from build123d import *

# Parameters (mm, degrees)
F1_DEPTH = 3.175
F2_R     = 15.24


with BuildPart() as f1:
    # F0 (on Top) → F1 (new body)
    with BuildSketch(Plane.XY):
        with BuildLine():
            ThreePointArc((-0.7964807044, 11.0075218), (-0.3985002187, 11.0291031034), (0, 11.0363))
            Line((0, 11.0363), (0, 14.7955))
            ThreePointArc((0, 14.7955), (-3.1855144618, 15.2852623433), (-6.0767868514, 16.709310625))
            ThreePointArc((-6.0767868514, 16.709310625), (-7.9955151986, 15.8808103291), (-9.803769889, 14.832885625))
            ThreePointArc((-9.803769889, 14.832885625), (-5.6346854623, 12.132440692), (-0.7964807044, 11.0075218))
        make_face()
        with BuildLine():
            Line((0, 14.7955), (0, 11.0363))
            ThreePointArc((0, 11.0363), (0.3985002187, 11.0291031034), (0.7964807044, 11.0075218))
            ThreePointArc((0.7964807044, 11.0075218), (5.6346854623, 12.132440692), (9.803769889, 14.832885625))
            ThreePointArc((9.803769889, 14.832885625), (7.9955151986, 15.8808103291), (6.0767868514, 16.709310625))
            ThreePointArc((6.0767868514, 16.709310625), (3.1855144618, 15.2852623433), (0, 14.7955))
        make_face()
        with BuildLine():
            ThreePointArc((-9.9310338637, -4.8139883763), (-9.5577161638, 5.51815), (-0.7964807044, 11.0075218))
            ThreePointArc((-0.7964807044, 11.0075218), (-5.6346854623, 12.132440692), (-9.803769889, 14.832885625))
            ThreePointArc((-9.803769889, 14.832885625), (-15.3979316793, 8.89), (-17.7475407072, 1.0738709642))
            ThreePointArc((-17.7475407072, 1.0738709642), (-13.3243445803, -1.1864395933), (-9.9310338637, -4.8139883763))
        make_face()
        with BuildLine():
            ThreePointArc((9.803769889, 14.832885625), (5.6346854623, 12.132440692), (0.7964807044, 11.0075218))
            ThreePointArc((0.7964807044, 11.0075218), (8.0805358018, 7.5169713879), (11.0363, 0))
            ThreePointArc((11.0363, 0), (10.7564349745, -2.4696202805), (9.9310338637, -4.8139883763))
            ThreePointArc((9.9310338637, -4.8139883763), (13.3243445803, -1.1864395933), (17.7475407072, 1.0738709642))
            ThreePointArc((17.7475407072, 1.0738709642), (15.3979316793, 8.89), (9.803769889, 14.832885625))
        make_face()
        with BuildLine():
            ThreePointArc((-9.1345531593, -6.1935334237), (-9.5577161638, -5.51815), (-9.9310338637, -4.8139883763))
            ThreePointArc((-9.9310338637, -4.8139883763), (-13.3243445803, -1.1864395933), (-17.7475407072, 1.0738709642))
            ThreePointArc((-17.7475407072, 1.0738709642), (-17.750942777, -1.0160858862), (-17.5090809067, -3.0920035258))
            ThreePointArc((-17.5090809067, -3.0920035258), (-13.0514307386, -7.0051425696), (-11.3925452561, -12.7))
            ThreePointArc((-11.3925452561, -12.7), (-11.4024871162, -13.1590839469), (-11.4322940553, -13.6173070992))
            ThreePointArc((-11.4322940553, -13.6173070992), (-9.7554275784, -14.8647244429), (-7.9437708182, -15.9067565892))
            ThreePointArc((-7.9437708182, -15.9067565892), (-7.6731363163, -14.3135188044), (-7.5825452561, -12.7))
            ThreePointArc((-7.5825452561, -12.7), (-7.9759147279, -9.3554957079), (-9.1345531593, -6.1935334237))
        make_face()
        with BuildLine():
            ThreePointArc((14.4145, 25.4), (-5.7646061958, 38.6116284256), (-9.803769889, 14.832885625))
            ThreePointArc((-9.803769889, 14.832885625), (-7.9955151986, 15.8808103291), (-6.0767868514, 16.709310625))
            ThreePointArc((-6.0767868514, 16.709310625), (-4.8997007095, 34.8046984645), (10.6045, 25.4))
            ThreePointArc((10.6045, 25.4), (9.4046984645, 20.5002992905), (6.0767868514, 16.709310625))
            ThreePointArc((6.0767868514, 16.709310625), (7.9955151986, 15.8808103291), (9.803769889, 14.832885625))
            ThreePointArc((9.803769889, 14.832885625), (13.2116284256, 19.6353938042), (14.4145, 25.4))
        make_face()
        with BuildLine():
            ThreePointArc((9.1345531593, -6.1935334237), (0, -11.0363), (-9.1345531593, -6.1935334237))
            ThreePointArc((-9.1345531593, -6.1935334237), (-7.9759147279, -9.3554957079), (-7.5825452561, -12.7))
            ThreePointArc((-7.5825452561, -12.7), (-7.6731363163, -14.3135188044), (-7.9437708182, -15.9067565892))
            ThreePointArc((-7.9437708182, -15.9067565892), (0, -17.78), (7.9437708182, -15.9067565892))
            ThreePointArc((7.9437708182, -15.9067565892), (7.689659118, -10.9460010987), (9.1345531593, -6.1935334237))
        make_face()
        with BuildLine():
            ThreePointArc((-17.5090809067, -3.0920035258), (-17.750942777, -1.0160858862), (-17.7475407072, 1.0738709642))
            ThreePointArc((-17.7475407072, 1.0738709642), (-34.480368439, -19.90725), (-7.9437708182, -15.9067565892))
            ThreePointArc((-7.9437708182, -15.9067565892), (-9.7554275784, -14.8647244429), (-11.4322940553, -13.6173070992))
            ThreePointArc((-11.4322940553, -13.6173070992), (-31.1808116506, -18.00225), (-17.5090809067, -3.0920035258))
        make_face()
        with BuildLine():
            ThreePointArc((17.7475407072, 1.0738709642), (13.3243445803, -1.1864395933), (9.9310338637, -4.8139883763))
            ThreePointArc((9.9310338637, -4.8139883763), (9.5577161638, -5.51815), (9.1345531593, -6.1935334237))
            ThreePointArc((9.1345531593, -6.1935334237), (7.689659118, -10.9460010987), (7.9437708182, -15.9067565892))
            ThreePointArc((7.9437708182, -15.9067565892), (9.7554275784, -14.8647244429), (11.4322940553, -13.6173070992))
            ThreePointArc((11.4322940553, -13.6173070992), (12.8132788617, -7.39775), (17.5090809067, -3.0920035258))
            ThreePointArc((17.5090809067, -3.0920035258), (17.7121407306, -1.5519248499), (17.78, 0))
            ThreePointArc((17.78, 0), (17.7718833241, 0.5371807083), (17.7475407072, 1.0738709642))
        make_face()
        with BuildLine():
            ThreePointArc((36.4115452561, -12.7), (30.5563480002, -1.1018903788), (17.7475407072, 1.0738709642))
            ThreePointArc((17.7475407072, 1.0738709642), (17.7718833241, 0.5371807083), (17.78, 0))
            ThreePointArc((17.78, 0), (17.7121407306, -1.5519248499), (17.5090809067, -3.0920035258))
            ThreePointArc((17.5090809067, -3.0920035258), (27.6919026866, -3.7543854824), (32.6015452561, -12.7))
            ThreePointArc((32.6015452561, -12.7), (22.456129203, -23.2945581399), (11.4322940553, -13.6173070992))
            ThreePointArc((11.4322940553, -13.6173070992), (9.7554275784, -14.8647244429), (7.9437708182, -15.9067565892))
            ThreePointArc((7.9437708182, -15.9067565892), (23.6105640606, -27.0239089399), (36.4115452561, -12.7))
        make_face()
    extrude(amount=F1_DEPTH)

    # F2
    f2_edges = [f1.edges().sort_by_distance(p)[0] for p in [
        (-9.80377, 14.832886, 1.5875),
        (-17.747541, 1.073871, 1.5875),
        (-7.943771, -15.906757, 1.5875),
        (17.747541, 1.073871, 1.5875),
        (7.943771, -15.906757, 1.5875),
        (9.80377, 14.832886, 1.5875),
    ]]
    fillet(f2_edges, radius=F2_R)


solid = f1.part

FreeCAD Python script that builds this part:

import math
import FreeCAD as App
import Part
import Sketcher
Q = App.Units.Quantity


def edges_at(feature, points):
    """Names of the edges that pass closest to the given points."""
    edges = feature.Shape.Edges
    near = lambda p: min(range(len(edges)), key=lambda i: edges[i].distToShape(Part.Vertex(*p))[0])
    return sorted({f"Edge{near(p) + 1}" for p in points})

doc = App.newDocument("Part")
body = doc.addObject("PartDesign::Body", "Body")

# Sketch on XY plane
sketch1 = body.newObject("Sketcher::SketchObject", "Sketch")
sketch1.AttachmentSupport = (doc.getObject("XY_Plane"), [""])
sketch1.MapMode = "FlatFace"
sketch1.addGeometry(Part.ArcOfCircle(Part.Circle(App.Vector(0, 0, 0), App.Vector(0, 0, 1), 17.8), math.radians(3), math.radians(57)), False)
sketch1.addGeometry(Part.ArcOfCircle(Part.Circle(App.Vector(0, 25.4, 0), App.Vector(0, 0, 1), 14.4), math.radians(-47), math.radians(0)), False)
sketch1.addGeometry(Part.ArcOfCircle(Part.Circle(App.Vector(0, 25.4, 0), App.Vector(0, 0, 1), 14.4), math.radians(0), math.radians(227)), False)
sketch1.addGeometry(Part.ArcOfCircle(Part.Circle(App.Vector(0, 0, 0), App.Vector(0, 0, 1), 17.8), math.radians(123), math.radians(177)), False)
sketch1.addGeometry(Part.ArcOfCircle(Part.Circle(App.Vector(-22, -12.7, 0), App.Vector(0, 0, 1), 14.4), math.radians(73), math.radians(347)), False)
sketch1.addGeometry(Part.ArcOfCircle(Part.Circle(App.Vector(0, 0, 0), App.Vector(0, 0, 1), 17.8), math.radians(-117), math.radians(-63)), False)
sketch1.addGeometry(Part.ArcOfCircle(Part.Circle(App.Vector(22, -12.7, 0), App.Vector(0, 0, 1), 14.4), math.radians(-167), math.radians(0)), False)
sketch1.addGeometry(Part.ArcOfCircle(Part.Circle(App.Vector(22, -12.7, 0), App.Vector(0, 0, 1), 14.4), math.radians(0), math.radians(107)), False)
sketch1.addGeometry(Part.ArcOfCircle(Part.Circle(App.Vector(0, 0, 0), App.Vector(0, 0, 1), 11), math.radians(90), math.radians(94.14)), False)
sketch1.addGeometry(Part.ArcOfCircle(Part.Circle(App.Vector(0, 0, 0), App.Vector(0, 0, 1), 11), math.radians(85.86), math.radians(90)), False)
sketch1.addGeometry(Part.ArcOfCircle(Part.Circle(App.Vector(0, 0, 0), App.Vector(0, 0, 1), 11), math.radians(0), math.radians(86)), False)
sketch1.addGeometry(Part.ArcOfCircle(Part.Circle(App.Vector(0, 0, 0), App.Vector(0, 0, 1), 11), math.radians(-26), math.radians(0)), False)
sketch1.addGeometry(Part.ArcOfCircle(Part.Circle(App.Vector(0, 0, 0), App.Vector(0, 0, 1), 11), math.radians(-34.14), math.radians(-25.86)), False)
sketch1.addGeometry(Part.ArcOfCircle(Part.Circle(App.Vector(0, 0, 0), App.Vector(0, 0, 1), 11), math.radians(-146), math.radians(-34)), False)
sketch1.addGeometry(Part.ArcOfCircle(Part.Circle(App.Vector(0, 0, 0), App.Vector(0, 0, 1), 11), math.radians(-154.14), math.radians(-145.86)), False)
sketch1.addGeometry(Part.ArcOfCircle(Part.Circle(App.Vector(0, 0, 0), App.Vector(0, 0, 1), 11), math.radians(94), math.radians(206)), False)
sketch1.addGeometry(Part.ArcOfCircle(Part.Circle(App.Vector(22, -12.7, 0), App.Vector(0, 0, 1), 10.6), math.radians(115), math.radians(185)), False)
sketch1.addGeometry(Part.ArcOfCircle(Part.Circle(App.Vector(22, -12.7, 0), App.Vector(0, 0, 1), 10.6), math.radians(0), math.radians(115)), False)
sketch1.addGeometry(Part.ArcOfCircle(Part.Circle(App.Vector(22, -12.7, 0), App.Vector(0, 0, 1), 10.6), math.radians(-175), math.radians(0)), False)
sketch1.addGeometry(Part.ArcOfCircle(Part.Circle(App.Vector(-22, -12.7, 0), App.Vector(0, 0, 1), 10.6), math.radians(0), math.radians(65)), False)
sketch1.addGeometry(Part.ArcOfCircle(Part.Circle(App.Vector(-22, -12.7, 0), App.Vector(0, 0, 1), 10.6), math.radians(-4.96), math.radians(0)), False)
sketch1.addGeometry(Part.ArcOfCircle(Part.Circle(App.Vector(-22, -12.7, 0), App.Vector(0, 0, 1), 10.6), math.radians(65), math.radians(355)), False)
sketch1.addGeometry(Part.ArcOfCircle(Part.Circle(App.Vector(0, 25.4, 0), App.Vector(0, 0, 1), 10.6), math.radians(-90), math.radians(-55)), False)
sketch1.addGeometry(Part.ArcOfCircle(Part.Circle(App.Vector(0, 25.4, 0), App.Vector(0, 0, 1), 10.6), math.radians(-125), math.radians(-90)), False)
sketch1.addGeometry(Part.ArcOfCircle(Part.Circle(App.Vector(0, 25.4, 0), App.Vector(0, 0, 1), 10.6), math.radians(0), math.radians(235)), False)
sketch1.addGeometry(Part.ArcOfCircle(Part.Circle(App.Vector(0, 25.4, 0), App.Vector(0, 0, 1), 10.6), math.radians(-55), math.radians(0)), False)
sketch1.addConstraint(Sketcher.Constraint("Coincident", 0, 2, 1, 1))
sketch1.addConstraint(Sketcher.Constraint("Tangent", 1, 2, 2, 1))
sketch1.addConstraint(Sketcher.Constraint("Coincident", 2, 2, 3, 1))
sketch1.addConstraint(Sketcher.Constraint("Coincident", 3, 2, 4, 1))
sketch1.addConstraint(Sketcher.Constraint("Coincident", 4, 2, 5, 1))
sketch1.addConstraint(Sketcher.Constraint("Coincident", 5, 2, 6, 1))
sketch1.addConstraint(Sketcher.Constraint("Tangent", 6, 2, 7, 1))
sketch1.addConstraint(Sketcher.Constraint("Coincident", 7, 2, 0, 1))
sketch1.addConstraint(Sketcher.Constraint("Tangent", 8, 1, 9, 2))
sketch1.addConstraint(Sketcher.Constraint("Tangent", 9, 1, 10, 2))
sketch1.addConstraint(Sketcher.Constraint("Tangent", 10, 1, 11, 2))
sketch1.addConstraint(Sketcher.Constraint("Tangent", 11, 1, 12, 2))
sketch1.addConstraint(Sketcher.Constraint("Tangent", 12, 1, 13, 2))
sketch1.addConstraint(Sketcher.Constraint("Tangent", 13, 1, 14, 2))
sketch1.addConstraint(Sketcher.Constraint("Tangent", 14, 1, 15, 2))
sketch1.addConstraint(Sketcher.Constraint("Tangent", 15, 1, 8, 2))
sketch1.addConstraint(Sketcher.Constraint("Tangent", 16, 1, 17, 2))
sketch1.addConstraint(Sketcher.Constraint("Tangent", 17, 1, 18, 2))
sketch1.addConstraint(Sketcher.Constraint("Tangent", 18, 1, 16, 2))
sketch1.addConstraint(Sketcher.Constraint("Tangent", 19, 1, 20, 2))
sketch1.addConstraint(Sketcher.Constraint("Tangent", 20, 1, 21, 2))
sketch1.addConstraint(Sketcher.Constraint("Tangent", 21, 1, 19, 2))
sketch1.addConstraint(Sketcher.Constraint("Tangent", 22, 1, 23, 2))
sketch1.addConstraint(Sketcher.Constraint("Tangent", 23, 1, 24, 2))
sketch1.addConstraint(Sketcher.Constraint("Tangent", 24, 1, 25, 2))
sketch1.addConstraint(Sketcher.Constraint("Tangent", 25, 1, 22, 2))
sketch1.addConstraint(Sketcher.Constraint("Coincident", 0, 3, -1, 1))
sketch1.addConstraint(Sketcher.Constraint("Coincident", 3, 3, -1, 1))
sketch1.addConstraint(Sketcher.Constraint("Coincident", 5, 3, -1, 1))
sketch1.addConstraint(Sketcher.Constraint("Coincident", 8, 3, -1, 1))
sketch1.addConstraint(Sketcher.Constraint("Coincident", 10, 3, -1, 1))
sketch1.addConstraint(Sketcher.Constraint("Coincident", 12, 3, -1, 1))
sketch1.addConstraint(Sketcher.Constraint("Coincident", 16, 3, 6, 3))
sketch1.addConstraint(Sketcher.Constraint("Coincident", 19, 3, 4, 3))
sketch1.addConstraint(Sketcher.Constraint("Coincident", 22, 3, 1, 3))
sketch1.addConstraint(Sketcher.Constraint("Equal", 1, 2))
sketch1.addConstraint(Sketcher.Constraint("Equal", 0, 3))
sketch1.addConstraint(Sketcher.Constraint("Equal", 2, 4))
sketch1.addConstraint(Sketcher.Constraint("Equal", 3, 5))
sketch1.addConstraint(Sketcher.Constraint("Equal", 4, 6))
sketch1.addConstraint(Sketcher.Constraint("Equal", 6, 7))
sketch1.addConstraint(Sketcher.Constraint("Equal", 12, 13))
sketch1.addConstraint(Sketcher.Constraint("Equal", 18, 19))
sketch1.addConstraint(Sketcher.Constraint("Equal", 21, 22))
sketch1.addConstraint(Sketcher.Constraint("Equal", 22, 23))
sketch1.addConstraint(Sketcher.Constraint("Symmetric", 4, 3, 6, 3, -2))
sketch1.addConstraint(Sketcher.Constraint("Symmetric", 23, 1, 25, 1, -2))
sketch1.addConstraint(Sketcher.Constraint("PointOnObject", 8, 1, -2))
sketch1.addConstraint(Sketcher.Constraint("PointOnObject", 10, 1, -1))
sketch1.addConstraint(Sketcher.Constraint("PointOnObject", 22, 1, -2))
sketch1.addConstraint(Sketcher.Constraint("Horizontal", 25, 3, 1, 2))
sketch1.addConstraint(Sketcher.Constraint("Horizontal", 21, 3, 6, 2))
sketch1.addConstraint(Sketcher.Constraint("Horizontal", 12, 1, 13, 1))
sketch1.addConstraint(Sketcher.Constraint("Horizontal", 11, 1, 14, 1))
sketch1.addConstraint(Sketcher.Constraint("Horizontal", 9, 1, 15, 1))
sketch1.addConstraint(Sketcher.Constraint("Horizontal", 6, 2, 17, 1))
sketch1.addConstraint(Sketcher.Constraint("Horizontal", 17, 1, 19, 1))
sketch1.addConstraint(Sketcher.Constraint("Horizontal", 18, 1, 20, 1))
sketch1.addConstraint(Sketcher.Constraint("Horizontal", 16, 1, 21, 1))
sketch1.addConstraint(Sketcher.Constraint("Horizontal", 1, 2, 24, 1))
sketch1.addConstraint(Sketcher.Constraint("Radius", 0, Q("0.7 in")))
sketch1.addConstraint(Sketcher.Constraint("DistanceY", -1, 1, 1, 3, Q("1 in")))
sketch1.addConstraint(Sketcher.Constraint("DistanceY", 4, 3, -1, 1, Q("0.5 in")))
sketch1.addConstraint(Sketcher.Constraint("Radius", 1, Q("0.5675 in")))
sketch1.addConstraint(Sketcher.Constraint("Radius", 8, Q("0.4345 in")))
sketch1.addConstraint(Sketcher.Constraint("Radius", 16, Q("0.4175 in")))
sketch1.addConstraint(Sketcher.Constraint("DistanceX", 3, 2, -1, 1, 17.747541))
sketch1.addConstraint(Sketcher.Constraint("DistanceX", -1, 1, 9, 1, 0.796481))
sketch1.addConstraint(Sketcher.Constraint("DistanceY", 11, 1, -1, 1, 4.813988))
sketch1.addConstraint(Sketcher.Constraint("DistanceX", -1, 1, 16, 1, 17.509081))
sketch1.addConstraint(Sketcher.Constraint("DistanceY", -1, 1, 23, 1, 16.709311))
sketch1.addConstraint(Sketcher.Constraint("DistanceX", 12, 1, 11, 1, 0.796481))
sketch1.addConstraint(Sketcher.Constraint("DistanceY", 5, 2, 18, 1, 2.289449))
pad1 = body.newObject("PartDesign::Pad", "Pad")
pad1.Profile = sketch1
pad1.Length = Q("0.125 in")
doc.recompute()

fillet = body.newObject("PartDesign::Fillet", "Fillet")
fillet.Base = (pad1, edges_at(pad1, [
    (-9.804, 14.833, 1.587),
    (-17.748, 1.074, 1.587),
    (-7.944, -15.907, 1.587),
    (17.748, 1.074, 1.587),
    (7.944, -15.907, 1.587),
    (9.804, 14.833, 1.587),
]))
fillet.Radius = Q("0.6 in")

doc.recompute()
